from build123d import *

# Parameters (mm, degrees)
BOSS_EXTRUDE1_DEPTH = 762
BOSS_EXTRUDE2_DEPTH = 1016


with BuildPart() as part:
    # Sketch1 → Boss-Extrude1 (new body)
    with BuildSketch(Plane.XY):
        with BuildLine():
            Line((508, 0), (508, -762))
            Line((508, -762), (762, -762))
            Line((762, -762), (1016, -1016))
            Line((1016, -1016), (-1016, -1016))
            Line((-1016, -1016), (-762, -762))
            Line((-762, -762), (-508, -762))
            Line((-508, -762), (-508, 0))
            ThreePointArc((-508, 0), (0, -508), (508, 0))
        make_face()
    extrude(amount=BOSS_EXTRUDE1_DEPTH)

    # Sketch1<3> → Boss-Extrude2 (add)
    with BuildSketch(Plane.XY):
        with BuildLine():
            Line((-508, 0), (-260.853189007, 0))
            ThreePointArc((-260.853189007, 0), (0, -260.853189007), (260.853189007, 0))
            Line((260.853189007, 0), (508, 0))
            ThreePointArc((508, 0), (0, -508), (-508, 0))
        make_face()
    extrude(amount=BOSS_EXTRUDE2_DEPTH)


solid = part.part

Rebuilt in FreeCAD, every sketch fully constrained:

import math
import FreeCAD as App
import Part
import Sketcher
from FreeCAD import Vector
Q = App.Units.Quantity

doc = App.newDocument("Part")
body = doc.addObject("PartDesign::Body", "Body")

sketch1 = doc.addObject("Sketcher::SketchObject", "Sketch")
body.addObject(sketch1)
sketch1.AttachmentSupport = (doc.XY_Plane, [""])
sketch1.MapMode = "FlatFace"
sketch1.addGeometry([
    Part.LineSegment(Vector(508, -762, 0), Vector(508, 0, 0)),
    Part.ArcOfCircle(Part.Circle(Vector(0, 0, 0), Vector(0, 0, 1), 508), math.radians(180), math.radians(360)),
    Part.LineSegment(Vector(-508, 0, 0), Vector(-508, -762, 0)),
    Part.LineSegment(Vector(-508, -762, 0), Vector(-762, -762, 0)),
    Part.LineSegment(Vector(-762, -762, 0), Vector(-1016, -1016, 0)),
    Part.LineSegment(Vector(-1016, -1016, 0), Vector(1016, -1016, 0)),
    Part.LineSegment(Vector(1016, -1016, 0), Vector(762, -762, 0)),
    Part.LineSegment(Vector(762, -762, 0), Vector(508, -762, 0)),
], False)
sketch1.addConstraint([
    Sketcher.Constraint("Tangent", 0, 2, 1, 2),
    Sketcher.Constraint("Tangent", 1, 1, 2, 1),
    Sketcher.Constraint("Coincident", 2, 2, 3, 1),
    Sketcher.Constraint("Coincident", 3, 2, 4, 1),
    Sketcher.Constraint("Coincident", 4, 2, 5, 1),
    Sketcher.Constraint("Coincident", 5, 2, 6, 1),
    Sketcher.Constraint("Coincident", 6, 2, 7, 1),
    Sketcher.Constraint("Coincident", 7, 2, 0, 1),
    Sketcher.Constraint("Vertical", 0),
    Sketcher.Constraint("Vertical", 2),
    Sketcher.Constraint("Horizontal", 3),
    Sketcher.Constraint("Horizontal", 5),
    Sketcher.Constraint("Horizontal", 7),
    Sketcher.Constraint("Coincident", 1, 3, -1, 1),
    Sketcher.Constraint("Symmetric", 3, 2, 6, 2, -2),
    Sketcher.Constraint("Perpendicular", 4, 6),
    Sketcher.Constraint("Equal", 4, 6),
    Sketcher.Constraint("Radius", 1, Q("20 in")),
    Sketcher.Constraint("DistanceX", 3, 2, 3, 1, Q("10 in")),
    Sketcher.Constraint("DistanceX", 5, 1, 5, 2, Q("80 in")),
    Sketcher.Constraint("DistanceY", 0, 1, 0, 2, Q("30 in")),
])
pad1 = doc.addObject("PartDesign::Pad", "Pad")
body.addObject(pad1)
pad1.Profile = sketch1
pad1.Length = Q("30 in")

sketch2 = doc.addObject("Sketcher::SketchObject", "Sketch001")
body.addObject(sketch2)
sketch2.AttachmentSupport = (doc.XY_Plane, [""])
sketch2.MapMode = "FlatFace"
sketch2.addGeometry([
    Part.LineSegment(Vector(-261, 0, 0), Vector(-508, 0, 0)),
    Part.ArcOfCircle(Part.Circle(Vector(0, 0, 0), Vector(0, 0, 1), 508), math.radians(180), math.radians(360)),
    Part.LineSegment(Vector(508, 0, 0), Vector(261, 0, 0)),
    Part.ArcOfCircle(Part.Circle(Vector(0, 0, 0), Vector(0, 0, 1), 261), math.radians(180), math.radians(360)),
], False)
sketch2.addConstraint([
    Sketcher.Constraint("Coincident", 0, 2, 1, 1),
    Sketcher.Constraint("Coincident", 1, 2, 2, 1),
    Sketcher.Constraint("Coincident", 2, 2, 3, 2),
    Sketcher.Constraint("Coincident", 3, 1, 0, 1),
    Sketcher.Constraint("Horizontal", 0),
    Sketcher.Constraint("Horizontal", 2),
    Sketcher.Constraint("Coincident", 1, 3, -1, 1),
    Sketcher.Constraint("Coincident", 3, 3, -1, 1),
    Sketcher.Constraint("PointOnObject", 0, 2, -1),
    Sketcher.Constraint("PointOnObject", 2, 2, -1),
    Sketcher.Constraint("Radius", 1, Q("20 in")),
    Sketcher.Constraint("Radius", 3, 260.853189),
])
pad2 = doc.addObject("PartDesign::Pad", "Pad001")
body.addObject(pad2)
pad2.Profile = sketch2
pad2.Length = Q("40 in")

doc.recompute()
